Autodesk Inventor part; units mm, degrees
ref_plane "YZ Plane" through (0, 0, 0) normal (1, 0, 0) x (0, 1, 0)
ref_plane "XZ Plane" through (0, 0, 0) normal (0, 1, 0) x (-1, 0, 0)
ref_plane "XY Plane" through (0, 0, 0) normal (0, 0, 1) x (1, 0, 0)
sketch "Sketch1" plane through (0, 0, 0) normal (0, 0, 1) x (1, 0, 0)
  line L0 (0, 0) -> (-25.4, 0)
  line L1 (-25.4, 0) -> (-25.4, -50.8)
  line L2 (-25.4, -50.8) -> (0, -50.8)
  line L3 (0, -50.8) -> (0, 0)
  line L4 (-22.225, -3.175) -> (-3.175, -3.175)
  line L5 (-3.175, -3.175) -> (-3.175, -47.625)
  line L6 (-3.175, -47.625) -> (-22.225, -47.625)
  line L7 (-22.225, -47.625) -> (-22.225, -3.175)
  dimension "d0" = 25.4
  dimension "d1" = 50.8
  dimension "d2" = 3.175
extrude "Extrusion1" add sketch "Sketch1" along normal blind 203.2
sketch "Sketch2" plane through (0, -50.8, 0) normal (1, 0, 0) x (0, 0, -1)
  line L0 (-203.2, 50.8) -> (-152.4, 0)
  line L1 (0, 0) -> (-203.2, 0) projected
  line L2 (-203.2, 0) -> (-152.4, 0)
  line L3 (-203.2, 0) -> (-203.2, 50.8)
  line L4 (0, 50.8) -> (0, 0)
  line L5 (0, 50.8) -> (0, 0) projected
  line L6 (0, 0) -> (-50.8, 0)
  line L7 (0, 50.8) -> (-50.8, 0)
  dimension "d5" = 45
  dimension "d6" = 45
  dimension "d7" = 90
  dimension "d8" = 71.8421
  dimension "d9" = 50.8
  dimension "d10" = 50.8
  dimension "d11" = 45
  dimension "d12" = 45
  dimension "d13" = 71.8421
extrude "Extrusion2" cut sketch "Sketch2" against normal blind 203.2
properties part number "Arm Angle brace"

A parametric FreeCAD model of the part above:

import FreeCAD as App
import Part
import Sketcher
Q = App.Units.Quantity

doc = App.newDocument("Part")
body = doc.addObject("PartDesign::Body", "Body")

# Sketch on XY plane
sketch1 = body.newObject("Sketcher::SketchObject", "Sketch")
sketch1.AttachmentSupport = (doc.getObject("XY_Plane"), [""])
sketch1.MapMode = "FlatFace"
sketch1.addGeometry([
    Part.LineSegment(App.Vector(0, -51, 0), App.Vector(0, 0, 0)),  # 0
    Part.LineSegment(App.Vector(0, 0, 0), App.Vector(-25, 0, 0)),  # 1
    Part.LineSegment(App.Vector(-25, 0, 0), App.Vector(-25, -51, 0)),  # 2
    Part.LineSegment(App.Vector(-25, -51, 0), App.Vector(0, -51, 0)),  # 3
    Part.LineSegment(App.Vector(-22, -48, 0), App.Vector(-22, -3, 0)),  # 4
    Part.LineSegment(App.Vector(-22, -3, 0), App.Vector(-3, -3, 0)),  # 5
    Part.LineSegment(App.Vector(-3, -3, 0), App.Vector(-3, -48, 0)),  # 6
    Part.LineSegment(App.Vector(-3, -48, 0), App.Vector(-22, -48, 0)),  # 7
], False)
sketch1.addConstraint([
    Sketcher.Constraint("Coincident", 0, 2, 1, 1),
    Sketcher.Constraint("Coincident", 1, 2, 2, 1),
    Sketcher.Constraint("Coincident", 2, 2, 3, 1),
    Sketcher.Constraint("Coincident", 3, 2, 0, 1),
    Sketcher.Constraint("Coincident", 4, 2, 5, 1),
    Sketcher.Constraint("Coincident", 5, 2, 6, 1),
    Sketcher.Constraint("Coincident", 6, 2, 7, 1),
    Sketcher.Constraint("Coincident", 7, 2, 4, 1),
    Sketcher.Constraint("Vertical", 0),
    Sketcher.Constraint("Horizontal", 1),
    Sketcher.Constraint("Vertical", 2),
    Sketcher.Constraint("Horizontal", 3),
    Sketcher.Constraint("Vertical", 4),
    Sketcher.Constraint("Horizontal", 5),
    Sketcher.Constraint("Vertical", 6),
    Sketcher.Constraint("Horizontal", 7),
    Sketcher.Constraint("Coincident", 0, 2, -1, 1),
    Sketcher.Constraint("DistanceX", 1, 2, 1, 1, Q("1 in")),
    Sketcher.Constraint("DistanceY", 0, 1, 0, 2, Q("2 in")),
    Sketcher.Constraint("DistanceY", 4, 2, -1, 1, Q("0.125 in")),
    Sketcher.Constraint("DistanceX", 5, 2, -1, 1, Q("0.125 in")),
    Sketcher.Constraint("DistanceX", 1, 2, 4, 2, Q("0.125 in")),
    Sketcher.Constraint("DistanceY", 3, 2, 6, 2, Q("0.125 in")),
])
pad1 = body.newObject("PartDesign::Pad", "Pad")
pad1.Profile = sketch1
pad1.Length = Q("8 in")

# Sketch on YZ plane
sketch2 = body.newObject("Sketcher::SketchObject", "Sketch001")
sketch2.AttachmentSupport = (doc.getObject("YZ_Plane"), [""])
sketch2.MapMode = "FlatFace"
sketch2.addGeometry([
    Part.LineSegment(App.Vector(0, 0, 0), App.Vector(-51, 51, 0)),  # 0
    Part.LineSegment(App.Vector(-51, 51, 0), App.Vector(-51, 0, 0)),  # 1
    Part.LineSegment(App.Vector(-51, 0, 0), App.Vector(0, 0, 0)),  # 2
    Part.LineSegment(App.Vector(-51, 152, 0), App.Vector(0, 203, 0)),  # 3
    Part.LineSegment(App.Vector(0, 203, 0), App.Vector(-51, 203, 0)),  # 4
    Part.LineSegment(App.Vector(-51, 203, 0), App.Vector(-51, 152, 0)),  # 5
], False)
sketch2.addConstraint([
    Sketcher.Constraint("Coincident", 0, 2, 1, 1),
    Sketcher.Constraint("Coincident", 1, 2, 2, 1),
    Sketcher.Constraint("Coincident", 2, 2, 0, 1),
    Sketcher.Constraint("Coincident", 3, 2, 4, 1),
    Sketcher.Constraint("Coincident", 4, 2, 5, 1),
    Sketcher.Constraint("Coincident", 5, 2, 3, 1),
    Sketcher.Constraint("Vertical", 1),
    Sketcher.Constraint("Horizontal", 2),
    Sketcher.Constraint("Horizontal", 4),
    Sketcher.Constraint("Vertical", 5),
    Sketcher.Constraint("Coincident", 2, 2, -1, 1),
    Sketcher.Constraint("PointOnObject", 3, 2, -2),
    Sketcher.Constraint("Perpendicular", 0, 3),
    Sketcher.Constraint("Vertical", 1, 2, 4, 2),
    Sketcher.Constraint("Equal", 4, 1),
    Sketcher.Constraint("DistanceX", 2, 1, 2, 2, Q("2 in")),
    Sketcher.Constraint("DistanceY", -1, 1, 3, 2, Q("8 in")),
])
pocket1 = body.newObject("PartDesign::Pocket", "Pocket")
pocket1.Profile = sketch2
pocket1.Length = Q("8 in")

doc.recompute()
